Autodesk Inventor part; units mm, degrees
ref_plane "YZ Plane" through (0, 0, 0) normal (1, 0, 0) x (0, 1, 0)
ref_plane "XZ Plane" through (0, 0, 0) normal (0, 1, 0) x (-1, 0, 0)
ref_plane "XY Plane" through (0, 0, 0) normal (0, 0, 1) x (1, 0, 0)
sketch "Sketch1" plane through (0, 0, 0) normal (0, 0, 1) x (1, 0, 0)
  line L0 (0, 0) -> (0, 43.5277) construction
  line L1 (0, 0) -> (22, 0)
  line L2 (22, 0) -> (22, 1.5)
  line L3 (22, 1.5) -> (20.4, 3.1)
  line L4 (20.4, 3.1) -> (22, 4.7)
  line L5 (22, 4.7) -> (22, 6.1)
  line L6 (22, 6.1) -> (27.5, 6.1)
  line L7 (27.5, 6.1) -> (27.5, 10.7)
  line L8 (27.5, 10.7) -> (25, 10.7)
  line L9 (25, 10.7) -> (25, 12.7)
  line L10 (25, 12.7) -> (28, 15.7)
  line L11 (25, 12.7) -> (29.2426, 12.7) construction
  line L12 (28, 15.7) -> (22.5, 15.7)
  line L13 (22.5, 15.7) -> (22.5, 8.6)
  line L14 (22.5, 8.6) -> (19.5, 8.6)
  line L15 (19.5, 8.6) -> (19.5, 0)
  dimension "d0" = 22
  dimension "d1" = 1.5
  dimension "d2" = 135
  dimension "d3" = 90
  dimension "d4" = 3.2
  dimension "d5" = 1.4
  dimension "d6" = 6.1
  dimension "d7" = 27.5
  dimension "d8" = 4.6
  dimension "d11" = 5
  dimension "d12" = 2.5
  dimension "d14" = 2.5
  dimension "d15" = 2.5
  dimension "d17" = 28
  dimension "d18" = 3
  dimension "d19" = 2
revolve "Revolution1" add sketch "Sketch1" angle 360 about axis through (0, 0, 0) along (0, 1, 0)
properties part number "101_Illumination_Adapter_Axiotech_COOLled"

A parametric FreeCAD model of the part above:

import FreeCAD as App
import Part
import Sketcher

V = App.Vector
Q = App.Units.Quantity

doc = App.newDocument("Part")
params = doc.addObject("Spreadsheet::Sheet", "Params")
for row, (alias, value) in enumerate([
    ("sketch1_width", "3 mm"),
    ("sketch1_height", "2 mm"),
    ("sketch1_width2", "2.5 mm"),
    ("sketch1_height2", "1.5 mm"),
    ("sketch1_height3", "1.4 mm"),
    ("revolution_angle", "360 deg"),
], start=1):
    params.set(f"A{row}", alias)
    params.set(f"B{row}", "=" + value)
    params.setAlias(f"B{row}", alias)

body = doc.addObject("PartDesign::Body", "Body")

# Sketch on XY plane
sketch1 = body.newObject("Sketcher::SketchObject", "Sketch")
sketch1.AttachmentSupport = (doc.getObject("XY_Plane"), [""])
sketch1.MapMode = "FlatFace"
sketch1.addGeometry(Part.LineSegment(V(19.5, 8.6, 0), V(19.5, 0, 0)), False)
sketch1.addGeometry(Part.LineSegment(V(19.5, 0, 0), V(22, 0, 0)), False)
sketch1.addGeometry(Part.LineSegment(V(22, 0, 0), V(22, 1.5, 0)), False)
sketch1.addGeometry(Part.LineSegment(V(22, 1.5, 0), V(20.4, 3.1, 0)), False)
sketch1.addGeometry(Part.LineSegment(V(20.4, 3.1, 0), V(22, 4.7, 0)), False)
sketch1.addGeometry(Part.LineSegment(V(22, 4.7, 0), V(22, 6.1, 0)), False)
sketch1.addGeometry(Part.LineSegment(V(22, 6.1, 0), V(27.5, 6.1, 0)), False)
sketch1.addGeometry(Part.LineSegment(V(27.5, 6.1, 0), V(27.5, 10.7, 0)), False)
sketch1.addGeometry(Part.LineSegment(V(27.5, 10.7, 0), V(25, 10.7, 0)), False)
sketch1.addGeometry(Part.LineSegment(V(25, 10.7, 0), V(25, 12.7, 0)), False)
sketch1.addGeometry(Part.LineSegment(V(25, 12.7, 0), V(28, 15.7, 0)), False)
sketch1.addGeometry(Part.LineSegment(V(28, 15.7, 0), V(22.5, 15.7, 0)), False)
sketch1.addGeometry(Part.LineSegment(V(22.5, 15.7, 0), V(22.5, 8.6, 0)), False)
sketch1.addGeometry(Part.LineSegment(V(22.5, 8.6, 0), V(19.5, 8.6, 0)), False)
sketch1.addConstraint(Sketcher.Constraint("Coincident", 0, 2, 1, 1))
sketch1.addConstraint(Sketcher.Constraint("Coincident", 1, 2, 2, 1))
sketch1.addConstraint(Sketcher.Constraint("Coincident", 2, 2, 3, 1))
sketch1.addConstraint(Sketcher.Constraint("Coincident", 3, 2, 4, 1))
sketch1.addConstraint(Sketcher.Constraint("Coincident", 4, 2, 5, 1))
sketch1.addConstraint(Sketcher.Constraint("Coincident", 5, 2, 6, 1))
sketch1.addConstraint(Sketcher.Constraint("Coincident", 6, 2, 7, 1))
sketch1.addConstraint(Sketcher.Constraint("Coincident", 7, 2, 8, 1))
sketch1.addConstraint(Sketcher.Constraint("Coincident", 8, 2, 9, 1))
sketch1.addConstraint(Sketcher.Constraint("Coincident", 9, 2, 10, 1))
sketch1.addConstraint(Sketcher.Constraint("Coincident", 10, 2, 11, 1))
sketch1.addConstraint(Sketcher.Constraint("Coincident", 11, 2, 12, 1))
sketch1.addConstraint(Sketcher.Constraint("Coincident", 12, 2, 13, 1))
sketch1.addConstraint(Sketcher.Constraint("Coincident", 13, 2, 0, 1))
sketch1.addConstraint(Sketcher.Constraint("Vertical", 0))
sketch1.addConstraint(Sketcher.Constraint("Horizontal", 1))
sketch1.addConstraint(Sketcher.Constraint("Vertical", 2))
sketch1.addConstraint(Sketcher.Constraint("Vertical", 5))
sketch1.addConstraint(Sketcher.Constraint("Horizontal", 6))
sketch1.addConstraint(Sketcher.Constraint("Vertical", 7))
sketch1.addConstraint(Sketcher.Constraint("Horizontal", 8))
sketch1.addConstraint(Sketcher.Constraint("Vertical", 9))
sketch1.addConstraint(Sketcher.Constraint("Horizontal", 11))
sketch1.addConstraint(Sketcher.Constraint("Vertical", 12))
sketch1.addConstraint(Sketcher.Constraint("Horizontal", 13))
sketch1.addConstraint(Sketcher.Constraint("PointOnObject", 0, 2, -1))
sketch1.addConstraint(Sketcher.Constraint("Perpendicular", 3, 4))
sketch1.addConstraint(Sketcher.Constraint("Parallel", 4, 10))
sketch1.addConstraint(Sketcher.Constraint("Vertical", 2, 2, 4, 2))
sketch1.addConstraint(Sketcher.Constraint("Equal", 1, 8))
sketch1.addConstraint(Sketcher.Constraint("Equal", 6, 11))
sketch1.addConstraint(Sketcher.Constraint("Equal", 3, 4))
sketch1.addConstraint(Sketcher.Constraint("DistanceX", 13, 2, 13, 1, Q("3 mm")))
sketch1.addConstraint(Sketcher.Constraint("DistanceY", 9, 1, 9, 2, Q("2 mm")))
sketch1.addConstraint(Sketcher.Constraint("DistanceX", 1, 1, 1, 2, Q("2.5 mm")))
sketch1.addConstraint(Sketcher.Constraint("DistanceY", 2, 1, 2, 2, Q("1.5 mm")))
sketch1.addConstraint(Sketcher.Constraint("DistanceY", 5, 1, 5, 2, Q("1.4 mm")))
sketch1.addConstraint(Sketcher.Constraint("DistanceY", 7, 1, 7, 2, Q("4.6 mm")))
sketch1.addConstraint(Sketcher.Constraint("DistanceX", -1, 1, 1, 2, Q("22 mm")))
sketch1.addConstraint(Sketcher.Constraint("DistanceX", -1, 1, 10, 2, Q("28 mm")))
sketch1.addConstraint(Sketcher.Constraint("DistanceY", 3, 2, 5, 2, Q("3 mm")))
sketch1.addConstraint(Sketcher.Constraint("DistanceY", 5, 2, 12, 2, Q("2.5 mm")))
sketch1.setExpression("Constraints[32]", "Params.sketch1_width")
sketch1.setExpression("Constraints[33]", "Params.sketch1_height")
sketch1.setExpression("Constraints[34]", "Params.sketch1_width2")
sketch1.setExpression("Constraints[35]", "Params.sketch1_height2")
sketch1.setExpression("Constraints[36]", "Params.sketch1_height3")
revolution = body.newObject("PartDesign::Revolution", "Revolution")
revolution.Profile = sketch1
revolution.ReferenceAxis = (sketch1, ["V_Axis"])
revolution.setExpression("Angle", "Params.revolution_angle")

doc.recompute()
